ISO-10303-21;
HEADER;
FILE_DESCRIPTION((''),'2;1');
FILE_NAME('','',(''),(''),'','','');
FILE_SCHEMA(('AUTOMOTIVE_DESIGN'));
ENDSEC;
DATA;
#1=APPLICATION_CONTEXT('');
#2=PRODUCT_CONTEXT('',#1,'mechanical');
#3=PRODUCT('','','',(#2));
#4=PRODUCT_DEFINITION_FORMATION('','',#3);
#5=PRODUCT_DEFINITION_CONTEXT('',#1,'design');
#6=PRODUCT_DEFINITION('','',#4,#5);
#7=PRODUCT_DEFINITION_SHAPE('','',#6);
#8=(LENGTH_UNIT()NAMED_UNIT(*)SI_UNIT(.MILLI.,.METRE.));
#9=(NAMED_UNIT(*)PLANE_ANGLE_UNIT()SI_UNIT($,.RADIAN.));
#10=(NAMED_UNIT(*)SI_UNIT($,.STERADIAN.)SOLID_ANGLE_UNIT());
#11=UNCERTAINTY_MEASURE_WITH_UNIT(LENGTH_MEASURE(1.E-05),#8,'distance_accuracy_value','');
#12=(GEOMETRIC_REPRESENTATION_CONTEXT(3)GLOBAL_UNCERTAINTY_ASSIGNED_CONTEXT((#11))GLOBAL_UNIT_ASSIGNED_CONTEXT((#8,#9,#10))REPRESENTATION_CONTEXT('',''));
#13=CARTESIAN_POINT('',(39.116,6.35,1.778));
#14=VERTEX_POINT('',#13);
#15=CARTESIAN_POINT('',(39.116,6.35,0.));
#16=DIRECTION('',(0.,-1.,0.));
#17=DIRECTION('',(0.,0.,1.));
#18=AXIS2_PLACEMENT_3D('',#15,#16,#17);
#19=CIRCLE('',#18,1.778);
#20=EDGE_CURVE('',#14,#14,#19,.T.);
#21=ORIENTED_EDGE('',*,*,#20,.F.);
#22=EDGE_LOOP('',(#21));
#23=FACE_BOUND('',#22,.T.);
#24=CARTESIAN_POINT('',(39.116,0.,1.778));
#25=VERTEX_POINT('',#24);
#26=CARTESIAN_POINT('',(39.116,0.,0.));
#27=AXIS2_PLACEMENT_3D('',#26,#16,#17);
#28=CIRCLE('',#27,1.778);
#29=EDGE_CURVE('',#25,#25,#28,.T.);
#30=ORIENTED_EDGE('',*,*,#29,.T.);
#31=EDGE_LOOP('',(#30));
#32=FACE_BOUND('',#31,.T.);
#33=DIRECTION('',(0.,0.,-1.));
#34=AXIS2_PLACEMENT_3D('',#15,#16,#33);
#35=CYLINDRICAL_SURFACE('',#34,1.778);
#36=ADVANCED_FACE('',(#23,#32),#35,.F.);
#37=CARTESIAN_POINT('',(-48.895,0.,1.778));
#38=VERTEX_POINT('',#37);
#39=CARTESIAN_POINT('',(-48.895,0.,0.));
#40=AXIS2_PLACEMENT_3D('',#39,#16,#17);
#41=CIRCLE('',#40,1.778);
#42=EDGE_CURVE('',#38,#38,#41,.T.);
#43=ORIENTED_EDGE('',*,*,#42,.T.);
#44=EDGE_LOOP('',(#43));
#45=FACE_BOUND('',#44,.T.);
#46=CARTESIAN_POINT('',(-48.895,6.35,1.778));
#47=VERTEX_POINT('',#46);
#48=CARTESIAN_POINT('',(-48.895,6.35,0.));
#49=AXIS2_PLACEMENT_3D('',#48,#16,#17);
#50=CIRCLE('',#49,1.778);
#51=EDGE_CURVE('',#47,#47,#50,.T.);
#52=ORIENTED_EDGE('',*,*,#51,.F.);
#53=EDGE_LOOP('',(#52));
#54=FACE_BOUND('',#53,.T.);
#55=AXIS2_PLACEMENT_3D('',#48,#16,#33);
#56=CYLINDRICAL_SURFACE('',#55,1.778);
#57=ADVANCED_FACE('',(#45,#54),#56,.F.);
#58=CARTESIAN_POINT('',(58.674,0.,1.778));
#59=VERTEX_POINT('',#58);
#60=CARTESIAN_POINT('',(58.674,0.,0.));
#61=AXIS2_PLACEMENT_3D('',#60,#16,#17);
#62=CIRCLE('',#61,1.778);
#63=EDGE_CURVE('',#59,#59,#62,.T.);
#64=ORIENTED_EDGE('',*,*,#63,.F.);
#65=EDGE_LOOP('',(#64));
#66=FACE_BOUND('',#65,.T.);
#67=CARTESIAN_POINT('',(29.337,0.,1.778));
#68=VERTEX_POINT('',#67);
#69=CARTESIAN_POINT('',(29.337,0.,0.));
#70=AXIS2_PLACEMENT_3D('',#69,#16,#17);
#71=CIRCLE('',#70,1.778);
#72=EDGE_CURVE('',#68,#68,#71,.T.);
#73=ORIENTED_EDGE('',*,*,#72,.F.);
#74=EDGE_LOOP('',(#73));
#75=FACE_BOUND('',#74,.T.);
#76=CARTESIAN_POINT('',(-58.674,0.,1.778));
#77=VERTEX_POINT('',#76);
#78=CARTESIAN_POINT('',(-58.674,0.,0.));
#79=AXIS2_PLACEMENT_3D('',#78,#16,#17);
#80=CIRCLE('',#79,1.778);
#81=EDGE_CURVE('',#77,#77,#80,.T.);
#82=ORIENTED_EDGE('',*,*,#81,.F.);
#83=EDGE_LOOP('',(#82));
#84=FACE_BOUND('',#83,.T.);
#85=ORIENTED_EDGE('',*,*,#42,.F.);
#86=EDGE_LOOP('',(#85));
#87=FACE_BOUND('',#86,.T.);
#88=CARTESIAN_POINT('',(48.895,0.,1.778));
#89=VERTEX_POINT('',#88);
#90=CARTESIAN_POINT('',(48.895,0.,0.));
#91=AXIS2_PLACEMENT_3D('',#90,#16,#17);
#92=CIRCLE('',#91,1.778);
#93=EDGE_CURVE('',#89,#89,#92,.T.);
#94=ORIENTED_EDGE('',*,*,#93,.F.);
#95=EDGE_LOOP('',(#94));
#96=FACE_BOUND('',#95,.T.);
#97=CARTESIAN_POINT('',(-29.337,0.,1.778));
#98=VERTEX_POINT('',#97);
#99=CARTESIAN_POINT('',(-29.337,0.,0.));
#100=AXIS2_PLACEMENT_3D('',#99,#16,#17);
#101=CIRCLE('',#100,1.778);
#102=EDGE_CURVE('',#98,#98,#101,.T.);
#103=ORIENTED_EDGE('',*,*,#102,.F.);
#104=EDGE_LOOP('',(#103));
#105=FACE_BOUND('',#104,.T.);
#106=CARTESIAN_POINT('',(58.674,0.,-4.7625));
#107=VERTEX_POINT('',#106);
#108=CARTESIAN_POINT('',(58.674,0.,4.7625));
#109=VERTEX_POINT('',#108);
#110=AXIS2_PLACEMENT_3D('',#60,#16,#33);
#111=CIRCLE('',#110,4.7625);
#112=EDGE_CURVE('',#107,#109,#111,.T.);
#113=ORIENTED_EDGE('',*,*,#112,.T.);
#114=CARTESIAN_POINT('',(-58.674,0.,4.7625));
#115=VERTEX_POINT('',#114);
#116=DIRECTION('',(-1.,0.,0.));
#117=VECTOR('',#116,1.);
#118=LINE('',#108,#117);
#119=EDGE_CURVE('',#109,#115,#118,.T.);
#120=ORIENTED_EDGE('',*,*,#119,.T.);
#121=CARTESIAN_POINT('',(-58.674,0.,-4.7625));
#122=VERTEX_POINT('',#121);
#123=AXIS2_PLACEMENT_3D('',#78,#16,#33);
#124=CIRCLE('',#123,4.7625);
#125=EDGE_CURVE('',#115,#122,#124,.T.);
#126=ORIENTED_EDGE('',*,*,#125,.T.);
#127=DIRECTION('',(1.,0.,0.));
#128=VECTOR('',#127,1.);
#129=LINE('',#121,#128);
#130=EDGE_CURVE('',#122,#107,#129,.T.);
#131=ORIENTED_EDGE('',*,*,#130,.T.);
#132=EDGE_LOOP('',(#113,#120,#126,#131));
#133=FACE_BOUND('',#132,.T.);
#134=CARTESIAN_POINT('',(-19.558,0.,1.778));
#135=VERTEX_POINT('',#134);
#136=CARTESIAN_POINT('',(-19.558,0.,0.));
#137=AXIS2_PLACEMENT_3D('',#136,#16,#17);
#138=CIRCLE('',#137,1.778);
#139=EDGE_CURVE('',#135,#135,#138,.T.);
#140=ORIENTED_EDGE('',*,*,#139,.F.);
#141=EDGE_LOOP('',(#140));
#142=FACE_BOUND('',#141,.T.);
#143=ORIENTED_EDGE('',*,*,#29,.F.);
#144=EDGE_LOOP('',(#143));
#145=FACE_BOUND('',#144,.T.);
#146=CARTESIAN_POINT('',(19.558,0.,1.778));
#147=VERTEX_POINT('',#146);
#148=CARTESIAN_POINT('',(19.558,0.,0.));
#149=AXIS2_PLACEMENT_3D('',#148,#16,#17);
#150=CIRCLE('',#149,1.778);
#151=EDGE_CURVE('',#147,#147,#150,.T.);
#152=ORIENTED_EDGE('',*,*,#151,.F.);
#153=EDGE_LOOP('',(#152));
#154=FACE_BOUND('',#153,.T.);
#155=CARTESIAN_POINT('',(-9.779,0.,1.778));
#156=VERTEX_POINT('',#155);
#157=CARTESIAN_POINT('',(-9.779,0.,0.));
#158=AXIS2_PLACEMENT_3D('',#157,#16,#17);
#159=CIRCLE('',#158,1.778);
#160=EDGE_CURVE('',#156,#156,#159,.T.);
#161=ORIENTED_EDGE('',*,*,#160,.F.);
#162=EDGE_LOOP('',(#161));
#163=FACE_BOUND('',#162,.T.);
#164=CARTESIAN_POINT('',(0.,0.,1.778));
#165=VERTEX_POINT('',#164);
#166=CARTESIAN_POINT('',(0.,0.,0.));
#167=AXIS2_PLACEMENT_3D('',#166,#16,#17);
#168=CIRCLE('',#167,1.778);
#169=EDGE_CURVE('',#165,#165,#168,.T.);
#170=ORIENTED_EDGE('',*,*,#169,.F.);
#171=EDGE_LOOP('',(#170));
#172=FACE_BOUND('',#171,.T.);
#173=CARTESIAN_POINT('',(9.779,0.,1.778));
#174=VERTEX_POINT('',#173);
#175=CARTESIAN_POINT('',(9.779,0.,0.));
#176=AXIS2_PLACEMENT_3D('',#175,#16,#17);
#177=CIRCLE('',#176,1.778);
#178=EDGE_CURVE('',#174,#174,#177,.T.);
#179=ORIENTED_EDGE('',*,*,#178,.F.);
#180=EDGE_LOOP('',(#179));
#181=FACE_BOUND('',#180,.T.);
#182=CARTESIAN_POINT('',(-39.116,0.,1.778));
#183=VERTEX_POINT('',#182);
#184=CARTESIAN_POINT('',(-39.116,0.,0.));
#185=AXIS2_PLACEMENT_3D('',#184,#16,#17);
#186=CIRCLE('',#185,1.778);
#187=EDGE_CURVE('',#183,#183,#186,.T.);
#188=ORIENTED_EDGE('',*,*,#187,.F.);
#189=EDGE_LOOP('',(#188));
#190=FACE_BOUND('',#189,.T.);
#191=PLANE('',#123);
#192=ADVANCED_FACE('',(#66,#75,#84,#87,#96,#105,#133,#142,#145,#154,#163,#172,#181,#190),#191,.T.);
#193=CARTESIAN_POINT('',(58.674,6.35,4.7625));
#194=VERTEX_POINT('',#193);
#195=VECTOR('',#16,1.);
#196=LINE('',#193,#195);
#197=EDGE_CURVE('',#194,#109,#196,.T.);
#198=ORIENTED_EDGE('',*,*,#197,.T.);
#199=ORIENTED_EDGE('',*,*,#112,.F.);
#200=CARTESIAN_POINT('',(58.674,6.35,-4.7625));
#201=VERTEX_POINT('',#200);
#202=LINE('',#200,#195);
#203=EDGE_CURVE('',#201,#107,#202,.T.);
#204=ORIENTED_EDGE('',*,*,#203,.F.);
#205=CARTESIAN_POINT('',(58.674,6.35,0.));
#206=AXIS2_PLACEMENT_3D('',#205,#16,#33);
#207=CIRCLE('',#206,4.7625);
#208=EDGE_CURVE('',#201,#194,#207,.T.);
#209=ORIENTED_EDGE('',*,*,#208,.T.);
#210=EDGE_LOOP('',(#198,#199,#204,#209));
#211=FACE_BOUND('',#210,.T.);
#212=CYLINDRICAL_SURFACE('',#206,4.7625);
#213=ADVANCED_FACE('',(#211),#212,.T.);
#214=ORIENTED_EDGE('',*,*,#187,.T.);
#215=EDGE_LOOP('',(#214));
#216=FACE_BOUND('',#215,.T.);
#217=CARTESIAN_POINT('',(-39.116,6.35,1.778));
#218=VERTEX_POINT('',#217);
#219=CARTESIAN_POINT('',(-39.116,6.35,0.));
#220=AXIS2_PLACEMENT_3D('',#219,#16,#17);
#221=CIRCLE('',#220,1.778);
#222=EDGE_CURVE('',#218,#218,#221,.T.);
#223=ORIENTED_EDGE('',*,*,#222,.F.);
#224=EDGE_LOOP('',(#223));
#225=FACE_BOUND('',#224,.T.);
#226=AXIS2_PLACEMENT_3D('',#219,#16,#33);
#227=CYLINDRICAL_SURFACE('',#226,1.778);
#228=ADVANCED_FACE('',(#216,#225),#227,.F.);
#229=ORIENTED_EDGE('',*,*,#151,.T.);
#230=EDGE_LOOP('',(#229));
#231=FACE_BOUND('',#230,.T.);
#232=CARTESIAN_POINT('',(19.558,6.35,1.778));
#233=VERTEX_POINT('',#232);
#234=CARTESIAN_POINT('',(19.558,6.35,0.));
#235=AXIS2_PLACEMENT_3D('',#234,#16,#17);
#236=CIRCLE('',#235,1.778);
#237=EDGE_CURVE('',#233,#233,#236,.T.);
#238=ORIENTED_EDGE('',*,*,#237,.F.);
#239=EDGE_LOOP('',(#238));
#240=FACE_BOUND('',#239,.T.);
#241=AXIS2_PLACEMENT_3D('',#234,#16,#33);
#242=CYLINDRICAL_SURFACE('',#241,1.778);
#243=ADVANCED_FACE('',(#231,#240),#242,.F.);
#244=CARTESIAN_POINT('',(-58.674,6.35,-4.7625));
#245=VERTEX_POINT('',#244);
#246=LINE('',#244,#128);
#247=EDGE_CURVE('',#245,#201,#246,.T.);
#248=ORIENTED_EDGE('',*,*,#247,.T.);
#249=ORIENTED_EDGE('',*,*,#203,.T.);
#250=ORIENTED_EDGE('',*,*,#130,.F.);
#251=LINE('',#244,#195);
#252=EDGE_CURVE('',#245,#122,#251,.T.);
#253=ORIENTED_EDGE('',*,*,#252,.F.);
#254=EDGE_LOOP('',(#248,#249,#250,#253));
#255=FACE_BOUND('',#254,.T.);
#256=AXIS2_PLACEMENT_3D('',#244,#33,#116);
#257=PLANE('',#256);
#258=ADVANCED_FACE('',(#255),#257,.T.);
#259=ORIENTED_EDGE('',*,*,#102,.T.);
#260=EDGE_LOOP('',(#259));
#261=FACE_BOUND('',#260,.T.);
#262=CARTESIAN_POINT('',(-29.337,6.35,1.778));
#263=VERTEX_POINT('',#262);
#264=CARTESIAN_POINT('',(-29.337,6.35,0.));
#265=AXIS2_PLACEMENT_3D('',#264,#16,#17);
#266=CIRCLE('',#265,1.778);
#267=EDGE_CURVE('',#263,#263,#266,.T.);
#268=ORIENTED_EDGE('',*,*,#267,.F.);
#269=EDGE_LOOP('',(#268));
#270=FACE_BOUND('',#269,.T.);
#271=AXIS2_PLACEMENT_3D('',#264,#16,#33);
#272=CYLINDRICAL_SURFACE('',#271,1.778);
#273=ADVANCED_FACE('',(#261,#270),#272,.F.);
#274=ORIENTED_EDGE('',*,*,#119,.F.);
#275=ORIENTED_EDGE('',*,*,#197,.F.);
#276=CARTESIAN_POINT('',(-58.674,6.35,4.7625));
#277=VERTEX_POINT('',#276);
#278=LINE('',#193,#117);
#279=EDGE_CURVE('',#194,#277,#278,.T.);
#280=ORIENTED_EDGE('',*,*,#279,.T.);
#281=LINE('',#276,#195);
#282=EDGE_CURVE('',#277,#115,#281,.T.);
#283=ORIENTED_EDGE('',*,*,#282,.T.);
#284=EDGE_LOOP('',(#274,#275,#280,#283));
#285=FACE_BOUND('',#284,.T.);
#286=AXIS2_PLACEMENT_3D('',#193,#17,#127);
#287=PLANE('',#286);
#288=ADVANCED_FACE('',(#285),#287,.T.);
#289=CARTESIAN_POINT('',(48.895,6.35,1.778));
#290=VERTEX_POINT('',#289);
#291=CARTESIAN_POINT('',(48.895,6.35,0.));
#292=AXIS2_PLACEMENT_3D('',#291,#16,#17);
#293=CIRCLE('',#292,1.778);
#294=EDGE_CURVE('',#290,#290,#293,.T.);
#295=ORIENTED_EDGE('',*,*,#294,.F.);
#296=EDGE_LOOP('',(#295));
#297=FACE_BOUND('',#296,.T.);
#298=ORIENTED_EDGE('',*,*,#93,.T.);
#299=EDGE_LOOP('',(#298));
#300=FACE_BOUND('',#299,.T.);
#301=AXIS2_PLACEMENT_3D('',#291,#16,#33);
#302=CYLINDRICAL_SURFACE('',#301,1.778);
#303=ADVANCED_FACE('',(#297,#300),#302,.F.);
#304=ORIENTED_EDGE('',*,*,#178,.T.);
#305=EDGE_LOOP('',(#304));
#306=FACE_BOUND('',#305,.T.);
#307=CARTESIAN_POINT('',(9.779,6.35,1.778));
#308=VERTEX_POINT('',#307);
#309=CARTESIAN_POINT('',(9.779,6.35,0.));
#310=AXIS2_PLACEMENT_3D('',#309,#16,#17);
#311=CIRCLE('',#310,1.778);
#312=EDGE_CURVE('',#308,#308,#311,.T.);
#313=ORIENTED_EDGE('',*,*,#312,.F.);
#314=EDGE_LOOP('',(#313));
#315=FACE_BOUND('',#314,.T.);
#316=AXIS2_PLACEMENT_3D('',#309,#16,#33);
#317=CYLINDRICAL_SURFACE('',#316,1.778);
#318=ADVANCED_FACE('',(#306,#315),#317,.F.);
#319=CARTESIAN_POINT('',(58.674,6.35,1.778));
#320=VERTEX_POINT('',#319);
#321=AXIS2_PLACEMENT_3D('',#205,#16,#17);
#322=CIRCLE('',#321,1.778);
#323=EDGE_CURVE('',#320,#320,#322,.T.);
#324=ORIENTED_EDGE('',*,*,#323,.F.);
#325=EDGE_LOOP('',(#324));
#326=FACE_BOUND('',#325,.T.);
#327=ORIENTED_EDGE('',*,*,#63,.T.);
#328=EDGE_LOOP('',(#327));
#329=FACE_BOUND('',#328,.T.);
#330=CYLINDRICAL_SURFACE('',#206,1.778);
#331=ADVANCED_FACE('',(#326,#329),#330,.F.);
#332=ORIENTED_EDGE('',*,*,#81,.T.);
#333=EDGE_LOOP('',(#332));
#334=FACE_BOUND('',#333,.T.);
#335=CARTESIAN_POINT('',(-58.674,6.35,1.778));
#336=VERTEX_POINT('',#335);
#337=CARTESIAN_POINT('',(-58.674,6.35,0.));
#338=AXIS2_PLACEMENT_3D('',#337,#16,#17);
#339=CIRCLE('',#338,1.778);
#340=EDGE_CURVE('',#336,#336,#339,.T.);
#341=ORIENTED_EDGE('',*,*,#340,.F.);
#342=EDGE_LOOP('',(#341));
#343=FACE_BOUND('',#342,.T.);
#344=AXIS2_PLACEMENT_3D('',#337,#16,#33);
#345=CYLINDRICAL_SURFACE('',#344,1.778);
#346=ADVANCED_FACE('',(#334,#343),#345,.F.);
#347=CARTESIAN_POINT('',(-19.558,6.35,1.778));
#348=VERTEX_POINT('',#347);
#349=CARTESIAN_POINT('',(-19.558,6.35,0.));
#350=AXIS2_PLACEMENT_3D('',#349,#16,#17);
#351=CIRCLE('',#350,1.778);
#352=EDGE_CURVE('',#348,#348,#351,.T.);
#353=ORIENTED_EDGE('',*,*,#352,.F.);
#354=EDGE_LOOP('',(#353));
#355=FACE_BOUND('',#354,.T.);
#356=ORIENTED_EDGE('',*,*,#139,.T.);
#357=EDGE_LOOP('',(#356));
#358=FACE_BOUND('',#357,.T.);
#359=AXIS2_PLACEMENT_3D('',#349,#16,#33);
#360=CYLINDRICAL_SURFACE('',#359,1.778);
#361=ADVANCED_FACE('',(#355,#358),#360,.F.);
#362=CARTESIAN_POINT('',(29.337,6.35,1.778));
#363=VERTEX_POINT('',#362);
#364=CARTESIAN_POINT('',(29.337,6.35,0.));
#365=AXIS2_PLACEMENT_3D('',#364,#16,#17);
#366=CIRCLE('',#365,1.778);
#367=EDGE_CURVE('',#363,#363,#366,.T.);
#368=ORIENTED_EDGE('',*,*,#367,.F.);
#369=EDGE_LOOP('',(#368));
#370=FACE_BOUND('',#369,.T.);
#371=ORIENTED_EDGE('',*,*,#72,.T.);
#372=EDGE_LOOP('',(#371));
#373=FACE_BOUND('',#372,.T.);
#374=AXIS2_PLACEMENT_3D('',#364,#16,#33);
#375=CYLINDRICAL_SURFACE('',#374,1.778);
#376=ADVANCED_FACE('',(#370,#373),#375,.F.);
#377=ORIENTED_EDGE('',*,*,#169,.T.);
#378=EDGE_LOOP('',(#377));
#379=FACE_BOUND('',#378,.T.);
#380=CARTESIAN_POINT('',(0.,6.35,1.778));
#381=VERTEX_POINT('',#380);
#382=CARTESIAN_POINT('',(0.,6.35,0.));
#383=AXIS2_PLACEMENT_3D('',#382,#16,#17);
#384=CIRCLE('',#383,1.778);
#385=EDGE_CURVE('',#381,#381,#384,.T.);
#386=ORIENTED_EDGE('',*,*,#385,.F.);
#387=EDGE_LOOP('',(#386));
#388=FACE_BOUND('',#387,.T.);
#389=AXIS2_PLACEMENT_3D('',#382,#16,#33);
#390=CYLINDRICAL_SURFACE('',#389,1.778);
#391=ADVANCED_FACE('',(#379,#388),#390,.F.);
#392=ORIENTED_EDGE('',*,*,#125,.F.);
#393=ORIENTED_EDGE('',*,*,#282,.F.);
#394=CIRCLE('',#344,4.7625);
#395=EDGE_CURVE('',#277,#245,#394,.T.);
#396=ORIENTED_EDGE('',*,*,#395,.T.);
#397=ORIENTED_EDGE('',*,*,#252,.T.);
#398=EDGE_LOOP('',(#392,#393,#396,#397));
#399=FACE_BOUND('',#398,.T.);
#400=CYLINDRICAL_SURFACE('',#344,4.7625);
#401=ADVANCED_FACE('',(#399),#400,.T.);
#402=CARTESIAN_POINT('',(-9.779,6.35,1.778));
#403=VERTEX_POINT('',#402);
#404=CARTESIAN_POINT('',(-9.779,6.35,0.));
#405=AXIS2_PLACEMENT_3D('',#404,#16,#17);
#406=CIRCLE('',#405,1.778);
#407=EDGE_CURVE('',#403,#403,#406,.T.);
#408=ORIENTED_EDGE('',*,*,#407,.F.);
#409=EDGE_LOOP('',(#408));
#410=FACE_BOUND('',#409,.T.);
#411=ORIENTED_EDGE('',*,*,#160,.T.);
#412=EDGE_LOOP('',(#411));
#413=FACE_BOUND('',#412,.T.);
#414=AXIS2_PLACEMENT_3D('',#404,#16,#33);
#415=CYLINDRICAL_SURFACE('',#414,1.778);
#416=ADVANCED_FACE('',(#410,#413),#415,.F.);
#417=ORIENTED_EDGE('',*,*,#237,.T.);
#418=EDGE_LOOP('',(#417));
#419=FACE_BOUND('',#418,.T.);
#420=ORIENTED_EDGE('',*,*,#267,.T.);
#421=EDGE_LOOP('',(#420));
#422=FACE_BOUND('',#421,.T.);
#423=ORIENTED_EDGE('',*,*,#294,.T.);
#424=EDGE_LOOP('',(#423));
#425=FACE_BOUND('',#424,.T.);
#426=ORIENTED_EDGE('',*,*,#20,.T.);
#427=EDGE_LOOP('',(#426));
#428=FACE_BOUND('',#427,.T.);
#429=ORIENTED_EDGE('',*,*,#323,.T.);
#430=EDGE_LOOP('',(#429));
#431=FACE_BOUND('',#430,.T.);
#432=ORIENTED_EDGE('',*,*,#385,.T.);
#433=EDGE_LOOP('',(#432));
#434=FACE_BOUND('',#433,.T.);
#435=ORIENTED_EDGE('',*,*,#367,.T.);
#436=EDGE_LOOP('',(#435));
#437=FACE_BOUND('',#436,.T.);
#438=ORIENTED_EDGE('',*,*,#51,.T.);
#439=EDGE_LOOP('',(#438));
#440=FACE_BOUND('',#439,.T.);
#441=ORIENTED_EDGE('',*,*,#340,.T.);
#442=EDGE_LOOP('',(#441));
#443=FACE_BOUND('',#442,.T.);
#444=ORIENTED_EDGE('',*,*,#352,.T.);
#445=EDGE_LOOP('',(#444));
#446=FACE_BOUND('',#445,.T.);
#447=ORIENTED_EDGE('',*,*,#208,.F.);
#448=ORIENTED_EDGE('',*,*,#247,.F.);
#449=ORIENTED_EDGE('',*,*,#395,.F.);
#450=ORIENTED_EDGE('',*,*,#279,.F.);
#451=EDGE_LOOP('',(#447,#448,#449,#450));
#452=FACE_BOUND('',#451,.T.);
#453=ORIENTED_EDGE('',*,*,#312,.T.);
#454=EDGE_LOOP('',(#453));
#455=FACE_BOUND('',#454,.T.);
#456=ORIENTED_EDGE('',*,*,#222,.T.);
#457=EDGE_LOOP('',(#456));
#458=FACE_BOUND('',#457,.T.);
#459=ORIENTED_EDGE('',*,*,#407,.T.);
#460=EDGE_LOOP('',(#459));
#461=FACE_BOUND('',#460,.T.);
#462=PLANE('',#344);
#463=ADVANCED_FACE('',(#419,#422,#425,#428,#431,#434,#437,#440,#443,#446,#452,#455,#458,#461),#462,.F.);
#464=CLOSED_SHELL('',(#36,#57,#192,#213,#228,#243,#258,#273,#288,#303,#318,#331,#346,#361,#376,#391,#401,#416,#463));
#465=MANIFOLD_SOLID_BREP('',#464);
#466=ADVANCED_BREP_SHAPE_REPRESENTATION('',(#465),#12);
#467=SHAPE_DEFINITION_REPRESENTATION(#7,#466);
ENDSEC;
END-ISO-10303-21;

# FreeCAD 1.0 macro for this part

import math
import FreeCAD as App
import Part
import Sketcher

V = App.Vector
Q = App.Units.Quantity

doc = App.newDocument("Part")
body = doc.addObject("PartDesign::Body", "Body")

sketch1 = doc.addObject("Sketcher::SketchObject", "Sketch")
body.addObject(sketch1)
sketch1.AttachmentSupport = (doc.XZ_Plane, [""])
sketch1.MapMode = "FlatFace"
sketch1.addGeometry([
    Part.LineSegment(V(-58.7, -4.8, 0), V(58.7, -4.8, 0)),
    Part.ArcOfCircle(Part.Circle(V(58.7, 0, 0), V(0, 0, 1), 4.8), math.radians(-90), math.radians(90)),
    Part.LineSegment(V(58.7, 4.8, 0), V(-58.7, 4.8, 0)),
    Part.ArcOfCircle(Part.Circle(V(-58.7, 0, 0), V(0, 0, 1), 4.8), math.radians(90), math.radians(270)),
    Part.Circle(V(-58.7, 0, 0), V(0, 0, 1), 1.8),
    Part.Circle(V(-48.9, 0, 0), V(0, 0, 1), 1.8),
    Part.Circle(V(-39.1, 0, 0), V(0, 0, 1), 1.8),
    Part.Circle(V(-29.3, 0, 0), V(0, 0, 1), 1.8),
    Part.Circle(V(-19.6, 0, 0), V(0, 0, 1), 1.8),
    Part.Circle(V(-9.8, 0, 0), V(0, 0, 1), 1.8),
    Part.Circle(V(0, 0, 0), V(0, 0, 1), 1.8),
    Part.Circle(V(9.8, 0, 0), V(0, 0, 1), 1.8),
    Part.Circle(V(19.6, 0, 0), V(0, 0, 1), 1.8),
    Part.Circle(V(29.3, 0, 0), V(0, 0, 1), 1.8),
    Part.Circle(V(39.1, 0, 0), V(0, 0, 1), 1.8),
    Part.Circle(V(48.9, 0, 0), V(0, 0, 1), 1.8),
    Part.Circle(V(58.7, 0, 0), V(0, 0, 1), 1.8),
], False)
sketch1.addConstraint([
    Sketcher.Constraint("Tangent", 0, 2, 1, 1),
    Sketcher.Constraint("Tangent", 1, 2, 2, 1),
    Sketcher.Constraint("Tangent", 2, 2, 3, 1),
    Sketcher.Constraint("Tangent", 3, 2, 0, 1),
    Sketcher.Constraint("Horizontal", 0),
    Sketcher.Constraint("Horizontal", 2),
    Sketcher.Constraint("Coincident", 10, 3, -1, 1),
    Sketcher.Constraint("Coincident", 4, 3, 3, 3),
    Sketcher.Constraint("Coincident", 16, 3, 1, 3),
    Sketcher.Constraint("Equal", 4, 5),
    Sketcher.Constraint("Equal", 5, 6),
    Sketcher.Constraint("Equal", 6, 7),
    Sketcher.Constraint("Equal", 7, 8),
    Sketcher.Constraint("Equal", 8, 9),
    Sketcher.Constraint("Equal", 9, 10),
    Sketcher.Constraint("Equal", 10, 11),
    Sketcher.Constraint("Equal", 11, 12),
    Sketcher.Constraint("Equal", 12, 13),
    Sketcher.Constraint("Equal", 13, 14),
    Sketcher.Constraint("Equal", 14, 15),
    Sketcher.Constraint("Equal", 15, 16),
    Sketcher.Constraint("Symmetric", 1, 3, 3, 3, -1, 1),
    Sketcher.Constraint("Symmetric", 9, 3, 11, 3, -1, 1),
    Sketcher.Constraint("Symmetric", 8, 3, 12, 3, -1, 1),
    Sketcher.Constraint("Symmetric", 7, 3, 13, 3, -1, 1),
    Sketcher.Constraint("Symmetric", 6, 3, 14, 3, -1, 1),
    Sketcher.Constraint("Symmetric", 5, 3, 15, 3, -1, 1),
    Sketcher.Constraint("PointOnObject", 5, 3, -1),
    Sketcher.Constraint("PointOnObject", 6, 3, -1),
    Sketcher.Constraint("PointOnObject", 7, 3, -1),
    Sketcher.Constraint("PointOnObject", 8, 3, -1),
    Sketcher.Constraint("PointOnObject", 9, 3, -1),
    Sketcher.Constraint("Diameter", 4, Q("0.14 in")),
    Sketcher.Constraint("Radius", 1, Q("0.1875 in")),
    Sketcher.Constraint("DistanceX", 0, 1, 0, 2, Q("4.62 in")),
    Sketcher.Constraint("DistanceX", 6, 3, -1, 1, Q("1.54 in")),
    Sketcher.Constraint("DistanceX", 8, 3, -1, 1, Q("0.77 in")),
    Sketcher.Constraint("DistanceX", 5, 3, 7, 3, Q("0.77 in")),
    Sketcher.Constraint("DistanceX", 7, 3, 9, 3, Q("0.77 in")),
    Sketcher.Constraint("DistanceX", 9, 3, 11, 3, Q("0.77 in")),
])
pad1 = doc.addObject("PartDesign::Pad", "Pad")
body.addObject(pad1)
pad1.Profile = sketch1
pad1.Length = Q("0.25 in")
pad1.Reversed = True

doc.recompute()
